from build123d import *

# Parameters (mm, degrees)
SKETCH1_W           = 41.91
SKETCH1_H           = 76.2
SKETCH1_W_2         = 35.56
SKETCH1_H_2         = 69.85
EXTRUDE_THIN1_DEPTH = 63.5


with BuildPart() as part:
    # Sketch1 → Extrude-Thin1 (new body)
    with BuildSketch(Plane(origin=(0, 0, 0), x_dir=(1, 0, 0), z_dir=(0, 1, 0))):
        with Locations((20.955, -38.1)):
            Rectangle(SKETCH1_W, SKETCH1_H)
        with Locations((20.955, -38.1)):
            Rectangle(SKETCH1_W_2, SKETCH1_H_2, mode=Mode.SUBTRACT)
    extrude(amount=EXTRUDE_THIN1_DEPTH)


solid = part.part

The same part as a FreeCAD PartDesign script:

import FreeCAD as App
import Part
import Sketcher
Q = App.Units.Quantity

doc = App.newDocument("Part")
body = doc.addObject("PartDesign::Body", "Body")

# Sketch on XZ plane
sketch1 = doc.addObject("Sketcher::SketchObject", "Sketch")
body.addObject(sketch1)
sketch1.AttachmentSupport = (doc.XZ_Plane, [""])
sketch1.MapMode = "FlatFace"
sketch1.addGeometry([
    Part.LineSegment(App.Vector(0, 0, 0), App.Vector(0, 76, 0)),  # 0
    Part.LineSegment(App.Vector(0, 76, 0), App.Vector(42, 76, 0)),  # 1
    Part.LineSegment(App.Vector(42, 76, 0), App.Vector(42, 0, 0)),  # 2
    Part.LineSegment(App.Vector(42, 0, 0), App.Vector(0, 0, 0)),  # 3
    Part.LineSegment(App.Vector(39, 73, 0), App.Vector(3, 73, 0)),  # 4
    Part.LineSegment(App.Vector(3, 73, 0), App.Vector(3, 3, 0)),  # 5
    Part.LineSegment(App.Vector(3, 3, 0), App.Vector(39, 3, 0)),  # 6
    Part.LineSegment(App.Vector(39, 3, 0), App.Vector(39, 73, 0)),  # 7
], False)
sketch1.addConstraint([
    Sketcher.Constraint("Coincident", 0, 2, 1, 1),
    Sketcher.Constraint("Coincident", 1, 2, 2, 1),
    Sketcher.Constraint("Coincident", 2, 2, 3, 1),
    Sketcher.Constraint("Coincident", 3, 2, 0, 1),
    Sketcher.Constraint("Coincident", 4, 2, 5, 1),
    Sketcher.Constraint("Coincident", 5, 2, 6, 1),
    Sketcher.Constraint("Coincident", 6, 2, 7, 1),
    Sketcher.Constraint("Coincident", 7, 2, 4, 1),
    Sketcher.Constraint("Vertical", 0),
    Sketcher.Constraint("Horizontal", 1),
    Sketcher.Constraint("Vertical", 2),
    Sketcher.Constraint("Horizontal", 3),
    Sketcher.Constraint("Horizontal", 4),
    Sketcher.Constraint("Vertical", 5),
    Sketcher.Constraint("Horizontal", 6),
    Sketcher.Constraint("Vertical", 7),
    Sketcher.Constraint("Coincident", 3, 2, -1, 1),
    Sketcher.Constraint("DistanceY", 0, 1, 0, 2, Q("3 in")),
    Sketcher.Constraint("DistanceX", 4, 2, 4, 1, Q("1.4 in")),
    Sketcher.Constraint("DistanceX", 1, 1, 1, 2, Q("1.65 in")),
    Sketcher.Constraint("DistanceY", 5, 2, 5, 1, Q("2.75 in")),
    Sketcher.Constraint("DistanceX", -1, 1, 4, 2, Q("0.125 in")),
    Sketcher.Constraint("DistanceY", -1, 1, 4, 2, Q("2.875 in")),
])
pad1 = doc.addObject("PartDesign::Pad", "Pad")
body.addObject(pad1)
pad1.Profile = sketch1
pad1.Length = Q("2.5 in")
pad1.Reversed = True

doc.recompute()
